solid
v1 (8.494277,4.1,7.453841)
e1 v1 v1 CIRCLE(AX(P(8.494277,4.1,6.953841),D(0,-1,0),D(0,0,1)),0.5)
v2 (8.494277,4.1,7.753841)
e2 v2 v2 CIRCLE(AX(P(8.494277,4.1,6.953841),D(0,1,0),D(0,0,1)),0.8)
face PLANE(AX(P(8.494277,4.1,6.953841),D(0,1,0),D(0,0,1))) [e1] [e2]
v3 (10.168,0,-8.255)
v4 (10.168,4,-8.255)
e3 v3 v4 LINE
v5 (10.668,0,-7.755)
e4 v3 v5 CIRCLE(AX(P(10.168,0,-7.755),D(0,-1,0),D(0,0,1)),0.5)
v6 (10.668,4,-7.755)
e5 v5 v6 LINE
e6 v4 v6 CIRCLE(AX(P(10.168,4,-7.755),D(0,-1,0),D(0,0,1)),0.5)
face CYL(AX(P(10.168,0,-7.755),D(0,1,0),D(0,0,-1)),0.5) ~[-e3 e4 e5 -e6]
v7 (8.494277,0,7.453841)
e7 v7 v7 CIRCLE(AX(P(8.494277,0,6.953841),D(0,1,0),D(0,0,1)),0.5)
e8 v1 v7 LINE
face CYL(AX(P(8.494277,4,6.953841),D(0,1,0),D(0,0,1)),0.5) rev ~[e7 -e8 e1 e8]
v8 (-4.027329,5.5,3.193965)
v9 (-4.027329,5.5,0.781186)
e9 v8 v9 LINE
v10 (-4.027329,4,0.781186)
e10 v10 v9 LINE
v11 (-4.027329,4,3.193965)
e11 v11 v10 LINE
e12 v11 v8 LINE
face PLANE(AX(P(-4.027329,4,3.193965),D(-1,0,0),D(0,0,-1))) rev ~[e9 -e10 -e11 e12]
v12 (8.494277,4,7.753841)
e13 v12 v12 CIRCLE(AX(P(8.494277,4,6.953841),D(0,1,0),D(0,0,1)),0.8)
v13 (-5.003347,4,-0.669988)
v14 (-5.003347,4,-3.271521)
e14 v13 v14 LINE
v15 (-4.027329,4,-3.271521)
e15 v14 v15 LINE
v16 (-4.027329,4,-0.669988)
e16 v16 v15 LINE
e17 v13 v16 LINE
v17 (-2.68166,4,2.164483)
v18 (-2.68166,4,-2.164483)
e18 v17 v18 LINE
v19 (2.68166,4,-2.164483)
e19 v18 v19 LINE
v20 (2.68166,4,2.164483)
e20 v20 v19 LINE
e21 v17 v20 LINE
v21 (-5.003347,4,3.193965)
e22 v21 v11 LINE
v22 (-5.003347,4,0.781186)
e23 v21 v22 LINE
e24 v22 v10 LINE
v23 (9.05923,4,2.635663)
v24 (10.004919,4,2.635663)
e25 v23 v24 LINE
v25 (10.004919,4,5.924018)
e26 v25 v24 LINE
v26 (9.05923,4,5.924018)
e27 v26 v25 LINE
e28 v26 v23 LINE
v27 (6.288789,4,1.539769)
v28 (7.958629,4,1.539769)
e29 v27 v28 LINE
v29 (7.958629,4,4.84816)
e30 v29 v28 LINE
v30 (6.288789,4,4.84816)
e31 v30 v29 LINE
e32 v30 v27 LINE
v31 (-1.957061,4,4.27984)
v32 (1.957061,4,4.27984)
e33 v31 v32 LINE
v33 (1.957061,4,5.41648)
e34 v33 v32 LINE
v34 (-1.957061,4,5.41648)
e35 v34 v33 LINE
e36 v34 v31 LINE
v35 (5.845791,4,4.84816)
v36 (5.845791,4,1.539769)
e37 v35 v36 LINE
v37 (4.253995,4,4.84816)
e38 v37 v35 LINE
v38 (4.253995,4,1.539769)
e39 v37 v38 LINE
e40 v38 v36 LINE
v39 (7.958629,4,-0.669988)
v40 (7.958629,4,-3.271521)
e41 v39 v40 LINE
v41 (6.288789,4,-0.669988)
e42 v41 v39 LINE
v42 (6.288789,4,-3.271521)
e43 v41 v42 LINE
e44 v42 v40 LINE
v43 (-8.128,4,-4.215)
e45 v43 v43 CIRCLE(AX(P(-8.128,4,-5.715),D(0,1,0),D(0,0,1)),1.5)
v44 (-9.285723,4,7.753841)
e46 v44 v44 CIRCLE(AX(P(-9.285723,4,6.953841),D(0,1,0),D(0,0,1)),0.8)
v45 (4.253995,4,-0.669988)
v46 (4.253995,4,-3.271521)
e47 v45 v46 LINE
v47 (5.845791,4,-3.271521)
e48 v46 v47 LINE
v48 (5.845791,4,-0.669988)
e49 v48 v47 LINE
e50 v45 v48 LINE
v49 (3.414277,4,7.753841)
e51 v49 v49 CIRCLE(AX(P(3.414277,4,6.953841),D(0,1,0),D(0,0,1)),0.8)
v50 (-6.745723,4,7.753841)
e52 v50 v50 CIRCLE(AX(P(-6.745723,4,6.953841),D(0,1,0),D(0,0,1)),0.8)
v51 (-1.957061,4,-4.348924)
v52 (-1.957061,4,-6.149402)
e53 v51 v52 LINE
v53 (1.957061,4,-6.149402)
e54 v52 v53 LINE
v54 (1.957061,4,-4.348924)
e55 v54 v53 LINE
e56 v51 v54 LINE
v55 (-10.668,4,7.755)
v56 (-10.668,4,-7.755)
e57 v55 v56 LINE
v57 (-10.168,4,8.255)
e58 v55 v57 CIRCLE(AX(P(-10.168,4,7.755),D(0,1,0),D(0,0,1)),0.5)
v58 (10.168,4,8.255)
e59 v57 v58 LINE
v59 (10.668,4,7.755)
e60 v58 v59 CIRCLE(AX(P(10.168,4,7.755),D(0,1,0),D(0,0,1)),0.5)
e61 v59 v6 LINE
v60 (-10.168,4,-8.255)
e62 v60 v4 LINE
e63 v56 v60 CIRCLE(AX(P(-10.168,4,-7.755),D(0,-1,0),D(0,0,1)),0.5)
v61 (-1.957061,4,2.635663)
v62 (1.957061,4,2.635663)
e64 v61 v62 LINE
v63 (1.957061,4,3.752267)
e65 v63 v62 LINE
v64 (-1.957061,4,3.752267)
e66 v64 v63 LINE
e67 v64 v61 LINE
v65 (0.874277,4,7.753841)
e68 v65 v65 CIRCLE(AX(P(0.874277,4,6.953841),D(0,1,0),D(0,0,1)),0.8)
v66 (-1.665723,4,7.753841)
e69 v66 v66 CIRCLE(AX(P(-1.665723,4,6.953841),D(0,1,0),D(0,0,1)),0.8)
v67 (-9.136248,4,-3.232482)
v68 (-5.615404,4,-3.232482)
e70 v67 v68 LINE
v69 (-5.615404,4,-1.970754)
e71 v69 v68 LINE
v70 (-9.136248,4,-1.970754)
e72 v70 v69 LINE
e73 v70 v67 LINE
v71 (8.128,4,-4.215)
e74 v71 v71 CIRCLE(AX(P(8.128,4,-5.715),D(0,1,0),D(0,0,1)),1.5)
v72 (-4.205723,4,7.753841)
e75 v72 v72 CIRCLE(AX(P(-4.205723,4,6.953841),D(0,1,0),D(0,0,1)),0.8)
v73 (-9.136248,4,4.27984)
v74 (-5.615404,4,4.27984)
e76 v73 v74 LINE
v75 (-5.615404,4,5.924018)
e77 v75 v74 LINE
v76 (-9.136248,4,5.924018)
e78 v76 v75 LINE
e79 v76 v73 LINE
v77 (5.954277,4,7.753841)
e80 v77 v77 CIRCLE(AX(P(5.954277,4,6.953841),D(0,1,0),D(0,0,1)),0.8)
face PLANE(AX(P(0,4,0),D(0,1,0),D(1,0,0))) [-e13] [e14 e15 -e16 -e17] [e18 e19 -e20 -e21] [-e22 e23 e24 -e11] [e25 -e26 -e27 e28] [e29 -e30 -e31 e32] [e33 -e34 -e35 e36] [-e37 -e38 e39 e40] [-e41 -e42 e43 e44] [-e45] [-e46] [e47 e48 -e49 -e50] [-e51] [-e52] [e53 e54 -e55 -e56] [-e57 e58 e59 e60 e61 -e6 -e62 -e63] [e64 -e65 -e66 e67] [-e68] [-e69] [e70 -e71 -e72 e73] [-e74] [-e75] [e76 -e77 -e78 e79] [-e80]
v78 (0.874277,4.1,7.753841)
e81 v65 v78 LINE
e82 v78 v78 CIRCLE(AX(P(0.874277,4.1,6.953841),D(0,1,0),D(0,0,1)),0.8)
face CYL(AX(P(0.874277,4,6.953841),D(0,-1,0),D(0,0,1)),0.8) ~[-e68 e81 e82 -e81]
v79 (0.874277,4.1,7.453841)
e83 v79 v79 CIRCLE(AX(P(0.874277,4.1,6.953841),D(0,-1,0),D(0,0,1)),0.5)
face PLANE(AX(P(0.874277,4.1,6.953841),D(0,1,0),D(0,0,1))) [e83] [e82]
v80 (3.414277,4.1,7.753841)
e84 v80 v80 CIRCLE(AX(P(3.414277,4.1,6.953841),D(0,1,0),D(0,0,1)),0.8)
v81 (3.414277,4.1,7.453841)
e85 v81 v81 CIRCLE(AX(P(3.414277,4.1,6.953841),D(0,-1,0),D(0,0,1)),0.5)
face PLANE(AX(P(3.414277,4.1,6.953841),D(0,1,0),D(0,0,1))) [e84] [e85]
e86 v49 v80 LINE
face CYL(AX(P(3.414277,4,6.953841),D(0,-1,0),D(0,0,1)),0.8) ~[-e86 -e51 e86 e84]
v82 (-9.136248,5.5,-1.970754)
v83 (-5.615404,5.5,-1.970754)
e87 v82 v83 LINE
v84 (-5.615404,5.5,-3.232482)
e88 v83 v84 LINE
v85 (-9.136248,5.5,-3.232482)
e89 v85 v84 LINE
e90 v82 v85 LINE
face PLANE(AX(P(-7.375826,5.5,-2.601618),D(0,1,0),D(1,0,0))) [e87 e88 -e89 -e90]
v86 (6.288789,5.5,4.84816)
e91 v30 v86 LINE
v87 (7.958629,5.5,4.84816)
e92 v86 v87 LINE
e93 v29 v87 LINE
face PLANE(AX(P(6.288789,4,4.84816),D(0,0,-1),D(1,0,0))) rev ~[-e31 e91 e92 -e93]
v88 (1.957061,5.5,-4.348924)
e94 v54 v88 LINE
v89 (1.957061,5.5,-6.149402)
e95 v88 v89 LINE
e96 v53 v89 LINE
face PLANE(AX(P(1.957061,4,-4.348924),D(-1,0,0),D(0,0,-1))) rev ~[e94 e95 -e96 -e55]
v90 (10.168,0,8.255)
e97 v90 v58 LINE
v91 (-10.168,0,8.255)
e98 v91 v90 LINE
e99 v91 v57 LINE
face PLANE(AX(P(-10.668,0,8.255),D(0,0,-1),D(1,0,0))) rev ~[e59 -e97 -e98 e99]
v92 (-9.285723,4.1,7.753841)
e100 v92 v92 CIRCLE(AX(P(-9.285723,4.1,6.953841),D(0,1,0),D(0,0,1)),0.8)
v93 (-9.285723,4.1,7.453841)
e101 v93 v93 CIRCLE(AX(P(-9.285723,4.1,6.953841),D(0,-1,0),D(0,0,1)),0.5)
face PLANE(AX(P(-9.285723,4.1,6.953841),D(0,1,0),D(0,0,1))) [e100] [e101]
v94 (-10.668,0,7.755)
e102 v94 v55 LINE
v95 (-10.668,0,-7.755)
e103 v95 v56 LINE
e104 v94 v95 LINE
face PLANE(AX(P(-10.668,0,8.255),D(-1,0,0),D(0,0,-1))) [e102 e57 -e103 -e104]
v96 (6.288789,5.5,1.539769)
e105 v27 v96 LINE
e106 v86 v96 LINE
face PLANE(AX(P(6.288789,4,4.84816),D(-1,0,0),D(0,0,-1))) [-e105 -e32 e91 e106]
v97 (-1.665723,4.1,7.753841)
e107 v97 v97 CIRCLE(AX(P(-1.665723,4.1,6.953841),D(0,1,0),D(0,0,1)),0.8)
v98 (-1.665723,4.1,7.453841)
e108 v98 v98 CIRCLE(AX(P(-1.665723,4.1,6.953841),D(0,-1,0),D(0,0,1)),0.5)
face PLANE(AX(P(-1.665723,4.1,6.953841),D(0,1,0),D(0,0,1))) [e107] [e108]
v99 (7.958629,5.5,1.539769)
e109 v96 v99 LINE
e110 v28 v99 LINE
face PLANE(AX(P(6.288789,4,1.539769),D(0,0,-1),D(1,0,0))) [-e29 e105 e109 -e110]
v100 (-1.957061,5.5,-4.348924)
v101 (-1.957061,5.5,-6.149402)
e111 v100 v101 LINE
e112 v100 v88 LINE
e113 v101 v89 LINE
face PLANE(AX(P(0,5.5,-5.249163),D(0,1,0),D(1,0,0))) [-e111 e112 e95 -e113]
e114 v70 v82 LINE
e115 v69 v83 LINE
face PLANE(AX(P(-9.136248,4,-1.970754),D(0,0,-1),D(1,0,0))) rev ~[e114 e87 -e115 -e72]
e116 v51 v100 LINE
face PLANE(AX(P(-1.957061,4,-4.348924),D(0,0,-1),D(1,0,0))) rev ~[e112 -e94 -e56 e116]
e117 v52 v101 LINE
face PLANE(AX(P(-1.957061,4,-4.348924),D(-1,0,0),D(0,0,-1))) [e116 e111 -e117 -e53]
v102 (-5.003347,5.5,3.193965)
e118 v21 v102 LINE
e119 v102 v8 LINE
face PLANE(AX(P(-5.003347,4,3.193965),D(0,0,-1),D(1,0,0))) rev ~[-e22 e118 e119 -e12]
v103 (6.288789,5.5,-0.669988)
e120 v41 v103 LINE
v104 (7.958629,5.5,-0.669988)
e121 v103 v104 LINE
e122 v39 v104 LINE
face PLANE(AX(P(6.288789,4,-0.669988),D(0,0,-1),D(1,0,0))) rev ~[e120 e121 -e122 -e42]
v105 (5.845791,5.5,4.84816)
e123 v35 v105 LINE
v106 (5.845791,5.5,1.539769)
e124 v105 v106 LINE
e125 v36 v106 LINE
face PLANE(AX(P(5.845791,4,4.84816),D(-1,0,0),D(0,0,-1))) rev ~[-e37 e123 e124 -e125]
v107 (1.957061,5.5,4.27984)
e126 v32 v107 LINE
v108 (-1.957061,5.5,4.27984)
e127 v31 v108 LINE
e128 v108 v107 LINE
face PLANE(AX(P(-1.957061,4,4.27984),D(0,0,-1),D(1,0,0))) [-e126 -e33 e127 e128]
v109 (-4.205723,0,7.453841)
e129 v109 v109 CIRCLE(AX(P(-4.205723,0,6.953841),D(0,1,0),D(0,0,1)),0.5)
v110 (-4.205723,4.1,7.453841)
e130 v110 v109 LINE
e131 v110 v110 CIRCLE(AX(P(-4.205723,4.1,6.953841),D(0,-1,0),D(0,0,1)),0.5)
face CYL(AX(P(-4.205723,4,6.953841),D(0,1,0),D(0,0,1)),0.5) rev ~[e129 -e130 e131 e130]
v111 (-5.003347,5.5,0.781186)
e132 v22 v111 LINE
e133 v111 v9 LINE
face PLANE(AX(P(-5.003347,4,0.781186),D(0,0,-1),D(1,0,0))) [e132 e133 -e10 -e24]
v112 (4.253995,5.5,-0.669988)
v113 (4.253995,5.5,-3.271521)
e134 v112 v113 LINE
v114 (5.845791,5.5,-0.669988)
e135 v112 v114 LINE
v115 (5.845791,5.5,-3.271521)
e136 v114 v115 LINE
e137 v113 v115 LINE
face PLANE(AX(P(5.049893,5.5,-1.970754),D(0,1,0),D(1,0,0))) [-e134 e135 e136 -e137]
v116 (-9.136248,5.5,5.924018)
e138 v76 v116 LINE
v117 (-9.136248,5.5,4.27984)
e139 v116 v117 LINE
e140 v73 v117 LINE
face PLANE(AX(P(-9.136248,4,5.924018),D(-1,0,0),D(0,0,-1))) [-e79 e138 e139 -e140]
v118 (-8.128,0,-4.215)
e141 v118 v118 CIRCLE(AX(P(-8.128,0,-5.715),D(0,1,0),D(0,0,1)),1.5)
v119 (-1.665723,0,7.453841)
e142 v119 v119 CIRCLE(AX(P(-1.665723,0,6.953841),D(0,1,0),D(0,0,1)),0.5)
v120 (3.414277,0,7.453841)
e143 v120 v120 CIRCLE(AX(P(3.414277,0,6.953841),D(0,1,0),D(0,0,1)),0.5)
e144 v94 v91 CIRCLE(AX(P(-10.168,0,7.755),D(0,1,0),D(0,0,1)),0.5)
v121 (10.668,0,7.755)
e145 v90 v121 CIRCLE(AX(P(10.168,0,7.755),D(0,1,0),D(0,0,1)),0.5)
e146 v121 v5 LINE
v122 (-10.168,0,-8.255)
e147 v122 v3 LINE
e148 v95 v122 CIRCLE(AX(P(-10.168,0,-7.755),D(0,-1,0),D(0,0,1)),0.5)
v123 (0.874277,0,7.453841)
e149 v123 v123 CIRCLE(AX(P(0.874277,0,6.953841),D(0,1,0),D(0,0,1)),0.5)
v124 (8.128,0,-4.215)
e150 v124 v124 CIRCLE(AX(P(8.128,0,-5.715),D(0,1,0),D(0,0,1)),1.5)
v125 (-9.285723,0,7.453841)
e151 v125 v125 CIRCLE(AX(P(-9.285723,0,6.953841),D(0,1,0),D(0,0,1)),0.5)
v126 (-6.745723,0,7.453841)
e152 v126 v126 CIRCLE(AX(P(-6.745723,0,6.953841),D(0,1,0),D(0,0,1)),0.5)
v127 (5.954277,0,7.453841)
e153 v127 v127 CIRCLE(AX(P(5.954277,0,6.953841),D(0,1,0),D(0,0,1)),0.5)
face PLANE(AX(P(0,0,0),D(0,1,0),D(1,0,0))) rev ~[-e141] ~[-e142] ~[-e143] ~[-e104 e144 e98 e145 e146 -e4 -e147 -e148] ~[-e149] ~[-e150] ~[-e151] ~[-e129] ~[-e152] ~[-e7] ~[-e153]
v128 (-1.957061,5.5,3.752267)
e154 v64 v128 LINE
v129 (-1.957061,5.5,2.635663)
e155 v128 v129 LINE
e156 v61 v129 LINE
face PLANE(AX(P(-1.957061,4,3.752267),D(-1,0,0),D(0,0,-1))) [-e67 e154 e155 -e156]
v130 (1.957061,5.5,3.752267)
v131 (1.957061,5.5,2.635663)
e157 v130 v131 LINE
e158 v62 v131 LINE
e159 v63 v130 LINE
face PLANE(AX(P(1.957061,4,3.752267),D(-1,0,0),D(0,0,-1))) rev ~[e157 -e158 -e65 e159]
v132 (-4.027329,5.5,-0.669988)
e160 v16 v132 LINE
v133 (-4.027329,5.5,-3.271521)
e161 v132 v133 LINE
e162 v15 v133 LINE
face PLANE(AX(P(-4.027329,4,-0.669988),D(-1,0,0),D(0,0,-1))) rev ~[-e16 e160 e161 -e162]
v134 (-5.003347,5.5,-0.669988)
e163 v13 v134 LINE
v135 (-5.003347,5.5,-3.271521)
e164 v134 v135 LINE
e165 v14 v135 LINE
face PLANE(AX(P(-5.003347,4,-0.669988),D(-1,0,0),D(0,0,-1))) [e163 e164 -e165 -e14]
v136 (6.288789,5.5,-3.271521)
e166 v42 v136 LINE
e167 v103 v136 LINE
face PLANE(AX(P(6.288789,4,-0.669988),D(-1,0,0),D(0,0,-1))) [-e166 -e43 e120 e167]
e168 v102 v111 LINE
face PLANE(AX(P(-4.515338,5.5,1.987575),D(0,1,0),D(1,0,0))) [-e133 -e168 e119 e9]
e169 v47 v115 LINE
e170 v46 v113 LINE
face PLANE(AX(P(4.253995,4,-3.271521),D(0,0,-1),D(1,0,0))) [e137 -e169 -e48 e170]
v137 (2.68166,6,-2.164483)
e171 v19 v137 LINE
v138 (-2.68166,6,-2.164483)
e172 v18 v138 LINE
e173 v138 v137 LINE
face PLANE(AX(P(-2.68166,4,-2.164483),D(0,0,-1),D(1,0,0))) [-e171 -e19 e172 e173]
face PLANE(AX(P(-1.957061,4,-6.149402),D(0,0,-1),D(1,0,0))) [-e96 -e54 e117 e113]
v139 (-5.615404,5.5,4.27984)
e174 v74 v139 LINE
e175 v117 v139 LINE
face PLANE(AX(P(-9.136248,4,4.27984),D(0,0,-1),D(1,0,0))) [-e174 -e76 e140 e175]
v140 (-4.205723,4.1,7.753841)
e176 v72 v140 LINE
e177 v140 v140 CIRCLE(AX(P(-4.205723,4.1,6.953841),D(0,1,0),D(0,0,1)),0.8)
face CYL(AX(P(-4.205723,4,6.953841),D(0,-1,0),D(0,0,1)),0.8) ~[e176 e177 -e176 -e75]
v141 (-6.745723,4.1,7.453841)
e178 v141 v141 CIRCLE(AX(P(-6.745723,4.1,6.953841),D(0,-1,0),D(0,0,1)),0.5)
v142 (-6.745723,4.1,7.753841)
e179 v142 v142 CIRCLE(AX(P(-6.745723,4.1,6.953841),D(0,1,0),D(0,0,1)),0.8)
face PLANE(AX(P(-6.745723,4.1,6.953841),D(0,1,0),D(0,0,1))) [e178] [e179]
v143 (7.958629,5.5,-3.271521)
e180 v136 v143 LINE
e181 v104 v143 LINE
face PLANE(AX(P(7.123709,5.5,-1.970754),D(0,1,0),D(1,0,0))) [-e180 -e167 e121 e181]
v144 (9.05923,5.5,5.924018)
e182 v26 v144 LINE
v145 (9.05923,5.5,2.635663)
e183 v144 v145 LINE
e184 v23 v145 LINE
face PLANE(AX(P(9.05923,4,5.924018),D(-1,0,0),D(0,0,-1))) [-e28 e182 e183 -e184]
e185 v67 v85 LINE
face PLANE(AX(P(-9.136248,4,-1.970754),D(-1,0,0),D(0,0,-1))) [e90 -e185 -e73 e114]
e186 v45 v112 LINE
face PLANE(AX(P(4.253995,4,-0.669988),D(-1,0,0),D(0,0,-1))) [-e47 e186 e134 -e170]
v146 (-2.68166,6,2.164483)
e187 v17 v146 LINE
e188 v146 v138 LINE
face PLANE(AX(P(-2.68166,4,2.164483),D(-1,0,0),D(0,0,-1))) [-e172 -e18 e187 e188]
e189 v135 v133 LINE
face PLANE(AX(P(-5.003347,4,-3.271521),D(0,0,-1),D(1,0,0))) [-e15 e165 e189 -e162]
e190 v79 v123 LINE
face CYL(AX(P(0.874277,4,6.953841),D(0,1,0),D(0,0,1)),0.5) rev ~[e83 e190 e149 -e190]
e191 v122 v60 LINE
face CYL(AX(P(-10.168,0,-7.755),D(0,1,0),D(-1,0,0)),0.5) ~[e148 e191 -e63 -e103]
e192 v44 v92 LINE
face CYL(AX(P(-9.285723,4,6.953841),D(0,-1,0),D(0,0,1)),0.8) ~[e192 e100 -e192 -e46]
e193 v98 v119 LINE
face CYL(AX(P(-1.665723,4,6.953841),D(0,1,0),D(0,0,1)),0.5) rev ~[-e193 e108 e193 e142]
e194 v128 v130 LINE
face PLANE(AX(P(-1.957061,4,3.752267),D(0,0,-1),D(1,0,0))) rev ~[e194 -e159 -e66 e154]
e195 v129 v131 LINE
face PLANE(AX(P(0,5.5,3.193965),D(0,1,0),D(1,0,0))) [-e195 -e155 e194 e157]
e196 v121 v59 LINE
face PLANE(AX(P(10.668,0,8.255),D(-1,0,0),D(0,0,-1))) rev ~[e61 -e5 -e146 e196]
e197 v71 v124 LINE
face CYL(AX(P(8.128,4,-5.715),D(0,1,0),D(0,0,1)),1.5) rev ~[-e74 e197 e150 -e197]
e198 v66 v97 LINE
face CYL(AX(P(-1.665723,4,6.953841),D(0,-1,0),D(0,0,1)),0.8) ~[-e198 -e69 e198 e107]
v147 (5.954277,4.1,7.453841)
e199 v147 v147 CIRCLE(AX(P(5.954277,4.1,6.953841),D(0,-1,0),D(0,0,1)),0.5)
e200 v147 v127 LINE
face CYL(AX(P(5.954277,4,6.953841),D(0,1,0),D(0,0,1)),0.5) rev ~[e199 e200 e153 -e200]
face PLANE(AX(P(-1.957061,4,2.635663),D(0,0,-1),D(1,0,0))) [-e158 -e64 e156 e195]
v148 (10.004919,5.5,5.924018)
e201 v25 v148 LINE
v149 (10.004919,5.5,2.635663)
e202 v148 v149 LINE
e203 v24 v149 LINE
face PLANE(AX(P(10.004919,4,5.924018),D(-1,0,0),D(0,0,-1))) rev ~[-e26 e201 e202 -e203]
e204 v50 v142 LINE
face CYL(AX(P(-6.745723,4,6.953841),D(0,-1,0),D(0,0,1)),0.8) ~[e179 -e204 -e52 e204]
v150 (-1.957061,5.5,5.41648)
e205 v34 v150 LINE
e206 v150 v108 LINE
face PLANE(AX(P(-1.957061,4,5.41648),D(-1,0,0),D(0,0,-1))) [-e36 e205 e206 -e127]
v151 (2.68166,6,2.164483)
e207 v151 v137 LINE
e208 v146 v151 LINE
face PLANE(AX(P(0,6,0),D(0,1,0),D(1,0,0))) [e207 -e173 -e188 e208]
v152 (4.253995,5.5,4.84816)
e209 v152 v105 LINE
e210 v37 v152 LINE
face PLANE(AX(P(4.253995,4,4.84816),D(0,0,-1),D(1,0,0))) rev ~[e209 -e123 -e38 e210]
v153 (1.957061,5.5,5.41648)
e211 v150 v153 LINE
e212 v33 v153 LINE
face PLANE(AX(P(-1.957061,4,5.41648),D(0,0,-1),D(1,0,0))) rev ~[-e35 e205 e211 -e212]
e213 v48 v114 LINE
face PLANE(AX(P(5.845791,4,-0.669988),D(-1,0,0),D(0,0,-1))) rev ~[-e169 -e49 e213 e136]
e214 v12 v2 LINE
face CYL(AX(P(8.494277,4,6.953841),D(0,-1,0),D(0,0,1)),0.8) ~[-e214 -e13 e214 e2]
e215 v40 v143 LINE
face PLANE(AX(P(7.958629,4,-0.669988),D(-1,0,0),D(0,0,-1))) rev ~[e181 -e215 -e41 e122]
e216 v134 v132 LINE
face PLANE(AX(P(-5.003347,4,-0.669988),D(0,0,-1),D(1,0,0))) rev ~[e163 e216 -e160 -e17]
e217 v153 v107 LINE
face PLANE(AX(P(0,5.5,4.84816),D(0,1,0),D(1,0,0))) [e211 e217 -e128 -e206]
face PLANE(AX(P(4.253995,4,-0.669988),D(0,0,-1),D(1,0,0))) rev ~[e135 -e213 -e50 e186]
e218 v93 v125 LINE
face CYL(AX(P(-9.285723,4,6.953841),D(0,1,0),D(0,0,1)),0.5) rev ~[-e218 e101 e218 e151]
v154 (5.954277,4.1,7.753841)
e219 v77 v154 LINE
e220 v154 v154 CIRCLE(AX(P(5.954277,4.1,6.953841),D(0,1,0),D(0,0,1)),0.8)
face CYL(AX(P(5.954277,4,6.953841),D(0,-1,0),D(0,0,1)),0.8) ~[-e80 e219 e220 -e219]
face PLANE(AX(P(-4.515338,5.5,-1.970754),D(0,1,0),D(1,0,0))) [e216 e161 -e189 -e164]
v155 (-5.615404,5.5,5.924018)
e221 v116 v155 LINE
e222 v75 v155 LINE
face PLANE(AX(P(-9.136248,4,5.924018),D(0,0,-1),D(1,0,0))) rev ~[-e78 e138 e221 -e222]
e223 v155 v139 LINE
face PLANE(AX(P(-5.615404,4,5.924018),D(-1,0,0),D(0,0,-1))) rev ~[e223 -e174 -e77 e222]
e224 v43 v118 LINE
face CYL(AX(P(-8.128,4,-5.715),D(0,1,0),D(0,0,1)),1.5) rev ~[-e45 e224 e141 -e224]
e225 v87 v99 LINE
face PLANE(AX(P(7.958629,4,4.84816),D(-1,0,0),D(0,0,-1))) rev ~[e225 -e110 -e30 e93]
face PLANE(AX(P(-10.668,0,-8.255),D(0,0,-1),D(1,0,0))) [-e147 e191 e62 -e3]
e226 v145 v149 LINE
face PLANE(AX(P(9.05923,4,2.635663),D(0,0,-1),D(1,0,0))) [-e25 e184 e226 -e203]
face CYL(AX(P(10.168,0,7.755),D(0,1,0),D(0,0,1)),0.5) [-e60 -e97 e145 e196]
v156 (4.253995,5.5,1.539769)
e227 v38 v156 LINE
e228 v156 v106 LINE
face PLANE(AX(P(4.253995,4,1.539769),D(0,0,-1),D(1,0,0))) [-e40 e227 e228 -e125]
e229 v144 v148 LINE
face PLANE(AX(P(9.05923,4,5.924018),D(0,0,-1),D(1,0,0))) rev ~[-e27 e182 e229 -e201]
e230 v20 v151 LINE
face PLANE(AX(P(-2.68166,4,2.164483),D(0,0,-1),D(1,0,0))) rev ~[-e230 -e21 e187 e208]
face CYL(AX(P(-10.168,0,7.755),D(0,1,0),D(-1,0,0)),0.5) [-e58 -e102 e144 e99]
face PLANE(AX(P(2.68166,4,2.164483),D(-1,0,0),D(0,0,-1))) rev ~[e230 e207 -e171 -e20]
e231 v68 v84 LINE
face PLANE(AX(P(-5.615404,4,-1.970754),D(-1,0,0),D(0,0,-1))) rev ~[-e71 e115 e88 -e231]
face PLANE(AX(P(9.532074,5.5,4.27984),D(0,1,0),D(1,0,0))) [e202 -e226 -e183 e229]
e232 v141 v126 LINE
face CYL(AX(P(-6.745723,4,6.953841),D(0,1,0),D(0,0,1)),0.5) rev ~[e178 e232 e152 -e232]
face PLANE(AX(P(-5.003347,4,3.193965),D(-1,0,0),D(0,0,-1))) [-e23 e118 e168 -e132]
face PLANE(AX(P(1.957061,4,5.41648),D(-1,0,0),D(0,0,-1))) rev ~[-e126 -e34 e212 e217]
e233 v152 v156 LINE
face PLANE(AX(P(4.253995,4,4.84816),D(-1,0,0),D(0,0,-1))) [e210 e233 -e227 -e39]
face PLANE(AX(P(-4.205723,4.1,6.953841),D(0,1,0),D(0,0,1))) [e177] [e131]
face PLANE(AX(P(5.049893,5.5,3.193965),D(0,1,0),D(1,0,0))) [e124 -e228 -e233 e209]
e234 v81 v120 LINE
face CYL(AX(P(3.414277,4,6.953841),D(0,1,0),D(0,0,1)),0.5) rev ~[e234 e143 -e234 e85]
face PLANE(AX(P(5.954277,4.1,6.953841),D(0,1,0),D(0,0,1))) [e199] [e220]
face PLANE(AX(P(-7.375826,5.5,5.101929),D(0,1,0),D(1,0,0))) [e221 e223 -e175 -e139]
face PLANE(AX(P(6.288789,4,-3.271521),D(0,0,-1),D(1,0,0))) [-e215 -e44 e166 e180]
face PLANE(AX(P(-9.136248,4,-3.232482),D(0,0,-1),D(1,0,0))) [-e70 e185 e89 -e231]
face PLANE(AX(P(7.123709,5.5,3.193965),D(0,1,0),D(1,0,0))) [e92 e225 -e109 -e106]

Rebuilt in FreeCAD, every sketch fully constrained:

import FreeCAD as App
import Part
import Sketcher

V = App.Vector


def edges_at(feature, points):
    """Names of the edges that pass closest to the given points."""
    edges = feature.Shape.Edges
    near = lambda p: min(range(len(edges)), key=lambda i: edges[i].distToShape(Part.Vertex(*p))[0])
    return sorted({f"Edge{near(p) + 1}" for p in points})

doc = App.newDocument("Part")
body = doc.addObject("PartDesign::Body", "Body")

# Sketch on XZ plane
sketch1 = body.newObject("Sketcher::SketchObject", "Sketch")
sketch1.AttachmentSupport = (doc.getObject("XZ_Plane"), [""])
sketch1.MapMode = "FlatFace"
sketch1.addGeometry([
    Part.LineSegment(V(-11, -8, 0), V(-11, 8, 0)),
    Part.LineSegment(V(-11, 8, 0), V(11, 8, 0)),
    Part.LineSegment(V(11, 8, 0), V(11, -8, 0)),
    Part.LineSegment(V(11, -8, 0), V(-11, -8, 0)),
], False)
sketch1.addConstraint([
    Sketcher.Constraint("Coincident", 0, 2, 1, 1),
    Sketcher.Constraint("Coincident", 1, 2, 2, 1),
    Sketcher.Constraint("Coincident", 2, 2, 3, 1),
    Sketcher.Constraint("Coincident", 3, 2, 0, 1),
    Sketcher.Constraint("Vertical", 0),
    Sketcher.Constraint("Horizontal", 1),
    Sketcher.Constraint("Vertical", 2),
    Sketcher.Constraint("Horizontal", 3),
    Sketcher.Constraint("Symmetric", 0, 2, 2, 2, -1, 1),
    Sketcher.Constraint("DistanceY", 0, 1, 0, 2, 16.51),
    Sketcher.Constraint("DistanceX", 1, 1, 1, 2, 21.336),
])
pad1 = body.newObject("PartDesign::Pad", "Pad")
pad1.Profile = sketch1
pad1.Length = 4
pad1.Reversed = True

# Sketch on XZ plane
sketch2 = body.newObject("Sketcher::SketchObject", "Sketch001")
sketch2.AttachmentSupport = (doc.getObject("XZ_Plane"), [""])
sketch2.MapMode = "FlatFace"
sketch2.AttachmentOffset = App.Placement(V(0, 0, -4), App.Rotation())
sketch2.addGeometry([
    Part.Circle(V(-8.1, -5.7, 0), V(0, 0, 1), 1.5),
    Part.Circle(V(8.1, -5.7, 0), V(0, 0, 1), 1.5),
], False)
sketch2.addConstraint([
    Sketcher.Constraint("Equal", 0, 1),
    Sketcher.Constraint("Symmetric", 0, 3, 1, 3, -2),
    Sketcher.Constraint("Diameter", 0, 3.0),
    Sketcher.Constraint("DistanceX", 0, 3, -1, 1, 8.128),
    Sketcher.Constraint("DistanceY", 0, 3, -1, 1, 5.715),
])
pocket1 = body.newObject("PartDesign::Pocket", "Pocket")
pocket1.Profile = sketch2
pocket1.Length = 4
pocket1.Reversed = True
doc.recompute()

fillet = body.newObject("PartDesign::Fillet", "Fillet")
fillet.Base = (pocket1, edges_at(pocket1, [(-10.668, 2, -8.255)]))
fillet.Radius = 0.5
doc.recompute()

fillet2 = body.newObject("PartDesign::Fillet", "Fillet001")
fillet2.Base = (fillet, edges_at(fillet, [(10.668, 2, -8.255)]))
fillet2.Radius = 0.5
doc.recompute()

fillet3 = body.newObject("PartDesign::Fillet", "Fillet002")
fillet3.Base = (fillet2, edges_at(fillet2, [(-10.668, 2, 8.255)]))
fillet3.Radius = 0.5
doc.recompute()

fillet4 = body.newObject("PartDesign::Fillet", "Fillet003")
fillet4.Base = (fillet3, edges_at(fillet3, [(10.668, 2, 8.255)]))
fillet4.Radius = 0.5

# Sketch on XZ plane
sketch3 = body.newObject("Sketcher::SketchObject", "Sketch002")
sketch3.AttachmentSupport = (doc.getObject("XZ_Plane"), [""])
sketch3.MapMode = "FlatFace"
sketch3.AttachmentOffset = App.Placement(V(0, 0, -4), App.Rotation())
sketch3.addGeometry([
    Part.LineSegment(V(-2.7, -2.2, 0), V(-2.7, 2.2, 0)),
    Part.LineSegment(V(-2.7, 2.2, 0), V(2.7, 2.2, 0)),
    Part.LineSegment(V(2.7, 2.2, 0), V(2.7, -2.2, 0)),
    Part.LineSegment(V(2.7, -2.2, 0), V(-2.7, -2.2, 0)),
], False)
sketch3.addConstraint([
    Sketcher.Constraint("Coincident", 0, 2, 1, 1),
    Sketcher.Constraint("Coincident", 1, 2, 2, 1),
    Sketcher.Constraint("Coincident", 2, 2, 3, 1),
    Sketcher.Constraint("Coincident", 3, 2, 0, 1),
    Sketcher.Constraint("Vertical", 0),
    Sketcher.Constraint("Horizontal", 1),
    Sketcher.Constraint("Vertical", 2),
    Sketcher.Constraint("Horizontal", 3),
    Sketcher.Constraint("Symmetric", 0, 2, 2, 2, -1, 1),
    Sketcher.Constraint("DistanceX", 1, 1, 1, 2, 5.36332),
    Sketcher.Constraint("DistanceY", 0, 1, 0, 2, 4.328966),
])
pad2 = body.newObject("PartDesign::Pad", "Pad001")
pad2.Profile = sketch3
pad2.Length = 2
pad2.Reversed = True

# Sketch on XZ plane
sketch4 = body.newObject("Sketcher::SketchObject", "Sketch003")
sketch4.AttachmentSupport = (doc.getObject("XZ_Plane"), [""])
sketch4.MapMode = "FlatFace"
sketch4.AttachmentOffset = App.Placement(V(0, 0, -4), App.Rotation())
sketch4.addGeometry([
    Part.LineSegment(V(-9.1, 4.3, 0), V(-9.1, 5.9, 0)),  # 0
    Part.LineSegment(V(-9.1, 5.9, 0), V(-5.6, 5.9, 0)),  # 1
    Part.LineSegment(V(-5.6, 5.9, 0), V(-5.6, 4.3, 0)),  # 2
    Part.LineSegment(V(-5.6, 4.3, 0), V(-9.1, 4.3, 0)),  # 3
    Part.LineSegment(V(-9.1, -3.2, 0), V(-9.1, -2, 0)),  # 4
    Part.LineSegment(V(-9.1, -2, 0), V(-5.6, -2, 0)),  # 5
    Part.LineSegment(V(-5.6, -2, 0), V(-5.6, -3.2, 0)),  # 6
    Part.LineSegment(V(-5.6, -3.2, 0), V(-9.1, -3.2, 0)),  # 7
    Part.LineSegment(V(-2, -6.1, 0), V(-2, -4.3, 0)),  # 8
    Part.LineSegment(V(-2, -4.3, 0), V(2, -4.3, 0)),  # 9
    Part.LineSegment(V(2, -4.3, 0), V(2, -6.1, 0)),  # 10
    Part.LineSegment(V(2, -6.1, 0), V(-2, -6.1, 0)),  # 11
    Part.LineSegment(V(4.3, -3.3, 0), V(4.3, -0.7, 0)),  # 12
    Part.LineSegment(V(4.3, -0.7, 0), V(5.8, -0.7, 0)),  # 13
    Part.LineSegment(V(5.8, -0.7, 0), V(5.8, -3.3, 0)),  # 14
    Part.LineSegment(V(5.8, -3.3, 0), V(4.3, -3.3, 0)),  # 15
    Part.LineSegment(V(6.3, -3.3, 0), V(6.3, -0.7, 0)),  # 16
    Part.LineSegment(V(6.3, -0.7, 0), V(8, -0.7, 0)),  # 17
    Part.LineSegment(V(8, -0.7, 0), V(8, -3.3, 0)),  # 18
    Part.LineSegment(V(8, -3.3, 0), V(6.3, -3.3, 0)),  # 19
    Part.LineSegment(V(4.3, 1.5, 0), V(4.3, 4.8, 0)),  # 20
    Part.LineSegment(V(4.3, 4.8, 0), V(5.8, 4.8, 0)),  # 21
    Part.LineSegment(V(5.8, 4.8, 0), V(5.8, 1.5, 0)),  # 22
    Part.LineSegment(V(5.8, 1.5, 0), V(4.3, 1.5, 0)),  # 23
    Part.LineSegment(V(6.3, 1.5, 0), V(6.3, 4.8, 0)),  # 24
    Part.LineSegment(V(6.3, 4.8, 0), V(8, 4.8, 0)),  # 25
    Part.LineSegment(V(8, 4.8, 0), V(8, 1.5, 0)),  # 26
    Part.LineSegment(V(8, 1.5, 0), V(6.3, 1.5, 0)),  # 27
    Part.LineSegment(V(9.1, 2.6, 0), V(9.1, 5.9, 0)),  # 28
    Part.LineSegment(V(9.1, 5.9, 0), V(10, 5.9, 0)),  # 29
    Part.LineSegment(V(10, 5.9, 0), V(10, 2.6, 0)),  # 30
    Part.LineSegment(V(10, 2.6, 0), V(9.1, 2.6, 0)),  # 31
    Part.LineSegment(V(-5, -3.3, 0), V(-5, -0.7, 0)),  # 32
    Part.LineSegment(V(-5, -0.7, 0), V(-4, -0.7, 0)),  # 33
    Part.LineSegment(V(-4, -0.7, 0), V(-4, -3.3, 0)),  # 34
    Part.LineSegment(V(-4, -3.3, 0), V(-5, -3.3, 0)),  # 35
    Part.LineSegment(V(-5, 0.8, 0), V(-5, 3.2, 0)),  # 36
    Part.LineSegment(V(-5, 3.2, 0), V(-4, 3.2, 0)),  # 37
    Part.LineSegment(V(-4, 3.2, 0), V(-4, 0.8, 0)),  # 38
    Part.LineSegment(V(-4, 0.8, 0), V(-5, 0.8, 0)),  # 39
    Part.LineSegment(V(-2, 2.6, 0), V(-2, 3.8, 0)),  # 40
    Part.LineSegment(V(-2, 3.8, 0), V(2, 3.8, 0)),  # 41
    Part.LineSegment(V(2, 3.8, 0), V(2, 2.6, 0)),  # 42
    Part.LineSegment(V(2, 2.6, 0), V(-2, 2.6, 0)),  # 43
    Part.LineSegment(V(-2, 4.3, 0), V(-2, 5.4, 0)),  # 44
    Part.LineSegment(V(-2, 5.4, 0), V(2, 5.4, 0)),  # 45
    Part.LineSegment(V(2, 5.4, 0), V(2, 4.3, 0)),  # 46
    Part.LineSegment(V(2, 4.3, 0), V(-2, 4.3, 0)),  # 47
], False)
sketch4.addConstraint([
    Sketcher.Constraint("Coincident", 0, 2, 1, 1),
    Sketcher.Constraint("Coincident", 1, 2, 2, 1),
    Sketcher.Constraint("Coincident", 2, 2, 3, 1),
    Sketcher.Constraint("Coincident", 3, 2, 0, 1),
    Sketcher.Constraint("Coincident", 4, 2, 5, 1),
    Sketcher.Constraint("Coincident", 5, 2, 6, 1),
    Sketcher.Constraint("Coincident", 6, 2, 7, 1),
    Sketcher.Constraint("Coincident", 7, 2, 4, 1),
    Sketcher.Constraint("Coincident", 8, 2, 9, 1),
    Sketcher.Constraint("Coincident", 9, 2, 10, 1),
    Sketcher.Constraint("Coincident", 10, 2, 11, 1),
    Sketcher.Constraint("Coincident", 11, 2, 8, 1),
    Sketcher.Constraint("Coincident", 12, 2, 13, 1),
    Sketcher.Constraint("Coincident", 13, 2, 14, 1),
    Sketcher.Constraint("Coincident", 14, 2, 15, 1),
    Sketcher.Constraint("Coincident", 15, 2, 12, 1),
    Sketcher.Constraint("Coincident", 16, 2, 17, 1),
    Sketcher.Constraint("Coincident", 17, 2, 18, 1),
    Sketcher.Constraint("Coincident", 18, 2, 19, 1),
    Sketcher.Constraint("Coincident", 19, 2, 16, 1),
    Sketcher.Constraint("Coincident", 20, 2, 21, 1),
    Sketcher.Constraint("Coincident", 21, 2, 22, 1),
    Sketcher.Constraint("Coincident", 22, 2, 23, 1),
    Sketcher.Constraint("Coincident", 23, 2, 20, 1),
    Sketcher.Constraint("Coincident", 24, 2, 25, 1),
    Sketcher.Constraint("Coincident", 25, 2, 26, 1),
    Sketcher.Constraint("Coincident", 26, 2, 27, 1),
    Sketcher.Constraint("Coincident", 27, 2, 24, 1),
    Sketcher.Constraint("Coincident", 28, 2, 29, 1),
    Sketcher.Constraint("Coincident", 29, 2, 30, 1),
    Sketcher.Constraint("Coincident", 30, 2, 31, 1),
    Sketcher.Constraint("Coincident", 31, 2, 28, 1),
    Sketcher.Constraint("Coincident", 32, 2, 33, 1),
    Sketcher.Constraint("Coincident", 33, 2, 34, 1),
    Sketcher.Constraint("Coincident", 34, 2, 35, 1),
    Sketcher.Constraint("Coincident", 35, 2, 32, 1),
    Sketcher.Constraint("Coincident", 36, 2, 37, 1),
    Sketcher.Constraint("Coincident", 37, 2, 38, 1),
    Sketcher.Constraint("Coincident", 38, 2, 39, 1),
    Sketcher.Constraint("Coincident", 39, 2, 36, 1),
    Sketcher.Constraint("Coincident", 40, 2, 41, 1),
    Sketcher.Constraint("Coincident", 41, 2, 42, 1),
    Sketcher.Constraint("Coincident", 42, 2, 43, 1),
    Sketcher.Constraint("Coincident", 43, 2, 40, 1),
    Sketcher.Constraint("Coincident", 44, 2, 45, 1),
    Sketcher.Constraint("Coincident", 45, 2, 46, 1),
    Sketcher.Constraint("Coincident", 46, 2, 47, 1),
    Sketcher.Constraint("Coincident", 47, 2, 44, 1),
    Sketcher.Constraint("Vertical", 0),
    Sketcher.Constraint("Horizontal", 1),
    Sketcher.Constraint("Vertical", 2),
    Sketcher.Constraint("Horizontal", 3),
    Sketcher.Constraint("Vertical", 4),
    Sketcher.Constraint("Horizontal", 5),
    Sketcher.Constraint("Vertical", 6),
    Sketcher.Constraint("Horizontal", 7),
    Sketcher.Constraint("Vertical", 8),
    Sketcher.Constraint("Horizontal", 9),
    Sketcher.Constraint("Vertical", 10),
    Sketcher.Constraint("Horizontal", 11),
    Sketcher.Constraint("Vertical", 12),
    Sketcher.Constraint("Horizontal", 13),
    Sketcher.Constraint("Vertical", 14),
    Sketcher.Constraint("Horizontal", 15),
    Sketcher.Constraint("Vertical", 16),
    Sketcher.Constraint("Horizontal", 17),
    Sketcher.Constraint("Vertical", 18),
    Sketcher.Constraint("Horizontal", 19),
    Sketcher.Constraint("Vertical", 20),
    Sketcher.Constraint("Horizontal", 21),
    Sketcher.Constraint("Vertical", 22),
    Sketcher.Constraint("Horizontal", 23),
    Sketcher.Constraint("Vertical", 24),
    Sketcher.Constraint("Horizontal", 25),
    Sketcher.Constraint("Vertical", 26),
    Sketcher.Constraint("Horizontal", 27),
    Sketcher.Constraint("Vertical", 28),
    Sketcher.Constraint("Horizontal", 29),
    Sketcher.Constraint("Vertical", 30),
    Sketcher.Constraint("Horizontal", 31),
    Sketcher.Constraint("Vertical", 32),
    Sketcher.Constraint("Horizontal", 33),
    Sketcher.Constraint("Vertical", 34),
    Sketcher.Constraint("Horizontal", 35),
    Sketcher.Constraint("Vertical", 36),
    Sketcher.Constraint("Horizontal", 37),
    Sketcher.Constraint("Vertical", 38),
    Sketcher.Constraint("Horizontal", 39),
    Sketcher.Constraint("Vertical", 40),
    Sketcher.Constraint("Horizontal", 41),
    Sketcher.Constraint("Vertical", 42),
    Sketcher.Constraint("Horizontal", 43),
    Sketcher.Constraint("Vertical", 44),
    Sketcher.Constraint("Horizontal", 45),
    Sketcher.Constraint("Vertical", 46),
    Sketcher.Constraint("Horizontal", 47),
    Sketcher.Constraint("Horizontal", 13, 2, 16, 2),
    Sketcher.Constraint("Horizontal", 15, 2, 18, 2),
    Sketcher.Constraint("Horizontal", 21, 2, 24, 2),
    Sketcher.Constraint("Horizontal", 23, 2, 26, 2),
    Sketcher.Constraint("Horizontal", 1, 2, 28, 2),
    Sketcher.Constraint("Horizontal", 17, 2, 32, 2),
    Sketcher.Constraint("Horizontal", 19, 2, 34, 2),
    Sketcher.Constraint("Horizontal", 31, 2, 42, 2),
    Sketcher.Constraint("Horizontal", 3, 2, 46, 2),
    Sketcher.Constraint("Vertical", 3, 2, 4, 2),
    Sketcher.Constraint("Vertical", 2, 2, 5, 2),
    Sketcher.Constraint("Vertical", 15, 2, 20, 2),
    Sketcher.Constraint("Vertical", 14, 2, 21, 2),
    Sketcher.Constraint("Vertical", 19, 2, 24, 2),
    Sketcher.Constraint("Vertical", 18, 2, 25, 2),
    Sketcher.Constraint("Vertical", 35, 2, 36, 2),
    Sketcher.Constraint("Vertical", 34, 2, 37, 2),
    Sketcher.Constraint("Vertical", 11, 2, 40, 2),
    Sketcher.Constraint("Vertical", 10, 2, 41, 2),
    Sketcher.Constraint("Vertical", 43, 2, 44, 2),
    Sketcher.Constraint("Vertical", 42, 2, 45, 2),
    Sketcher.Constraint("DistanceX", 13, 2, 16, 2, 0.442998),
    Sketcher.Constraint("DistanceX", 9, 1, 9, 2, 3.914121),
    Sketcher.Constraint("DistanceX", 17, 1, 17, 2, 1.669839),
    Sketcher.Constraint("DistanceX", 29, 1, 29, 2, 0.945688),
    Sketcher.Constraint("DistanceX", 33, 1, 33, 2, 0.976019),
    Sketcher.Constraint("DistanceY", 8, 1, 8, 2, 1.800478),
    Sketcher.Constraint("DistanceY", 20, 1, 20, 2, 3.308391),
    Sketcher.Constraint("DistanceY", 36, 1, 36, 2, 2.412779),
    Sketcher.Constraint("DistanceY", 44, 1, 44, 2, 1.13664),
    Sketcher.Constraint("DistanceY", 6, 2, 1, 2, 9.1565),
    Sketcher.Constraint("DistanceX", 5, 2, 12, 2, 9.869399),
    Sketcher.Constraint("DistanceX", 25, 2, 28, 2, 1.100602),
    Sketcher.Constraint("DistanceX", 4, 2, 32, 2, 4.132901),
    Sketcher.Constraint("DistanceY", 37, 2, 40, 2, 0.558302),
    Sketcher.Constraint("DistanceY", 43, 2, 37, 2, 0.558302),
    Sketcher.Constraint("DistanceX", 1, 1, 1, 2, 3.520844),
    Sketcher.Constraint("DistanceX", 13, 1, 13, 2, 1.591797),
    Sketcher.Constraint("DistanceY", 0, 1, 0, 2, 1.644177),
    Sketcher.Constraint("DistanceY", 4, 1, 4, 2, 1.261727),
    Sketcher.Constraint("DistanceY", 12, 1, 12, 2, 2.601533),
    Sketcher.Constraint("DistanceY", 28, 1, 28, 2, 3.288355),
    Sketcher.Constraint("DistanceY", -1, 1, 2, 2, 4.27984),
    Sketcher.Constraint("DistanceX", 8, 2, -1, 1, 1.957061),
    Sketcher.Constraint("DistanceX", -1, 1, 13, 2, 5.845791),
    Sketcher.Constraint("DistanceY", 14, 2, -1, 1, 3.271521),
    Sketcher.Constraint("DistanceY", -1, 1, 20, 2, 4.84816),
    Sketcher.Constraint("DistanceY", 8, 2, 5, 2, 2.37817),
])
pad3 = body.newObject("PartDesign::Pad", "Pad002")
pad3.Profile = sketch4
pad3.Length = 1.5
pad3.Reversed = True

# Sketch on XZ plane
sketch5 = body.newObject("Sketcher::SketchObject", "Sketch004")
sketch5.AttachmentSupport = (doc.getObject("XZ_Plane"), [""])
sketch5.MapMode = "FlatFace"
sketch5.AttachmentOffset = App.Placement(V(0, 0, -4), App.Rotation())
sketch5.addGeometry([
    Part.Circle(V(-9.3, 7, 0), V(0, 0, 1), 0.8),  # 0
    Part.Circle(V(-6.7, 7, 0), V(0, 0, 1), 0.8),  # 1
    Part.Circle(V(-4.2, 7, 0), V(0, 0, 1), 0.8),  # 2
    Part.Circle(V(-1.7, 7, 0), V(0, 0, 1), 0.8),  # 3
    Part.Circle(V(0.9, 7, 0), V(0, 0, 1), 0.8),  # 4
    Part.Circle(V(3.4, 7, 0), V(0, 0, 1), 0.8),  # 5
    Part.Circle(V(6, 7, 0), V(0, 0, 1), 0.8),  # 6
    Part.Circle(V(8.5, 7, 0), V(0, 0, 1), 0.8),  # 7
], False)
sketch5.addConstraint([
    Sketcher.Constraint("Equal", 0, 1),
    Sketcher.Constraint("Equal", 1, 2),
    Sketcher.Constraint("Equal", 2, 3),
    Sketcher.Constraint("Equal", 3, 4),
    Sketcher.Constraint("Equal", 4, 5),
    Sketcher.Constraint("Equal", 5, 6),
    Sketcher.Constraint("Equal", 6, 7),
    Sketcher.Constraint("Horizontal", 0, 3, 1, 3),
    Sketcher.Constraint("Horizontal", 1, 3, 2, 3),
    Sketcher.Constraint("Horizontal", 2, 3, 3, 3),
    Sketcher.Constraint("Horizontal", 3, 3, 4, 3),
    Sketcher.Constraint("Horizontal", 4, 3, 5, 3),
    Sketcher.Constraint("Horizontal", 5, 3, 6, 3),
    Sketcher.Constraint("Horizontal", 6, 3, 7, 3),
    Sketcher.Constraint("Diameter", 0, 1.6),
    Sketcher.Constraint("DistanceX", 0, 3, 5, 3, 12.7),
    Sketcher.Constraint("DistanceX", 1, 3, 6, 3, 12.7),
    Sketcher.Constraint("DistanceX", 2, 3, 7, 3, 12.7),
    Sketcher.Constraint("DistanceX", 0, 3, 1, 3, 2.54),
    Sketcher.Constraint("DistanceX", 1, 3, 2, 3, 2.54),
    Sketcher.Constraint("DistanceX", 2, 3, 3, 3, 2.54),
    Sketcher.Constraint("DistanceX", 3, 3, 4, 3, 2.54),
    Sketcher.Constraint("DistanceY", -1, 1, 0, 3, 6.953841),
    Sketcher.Constraint("DistanceX", 0, 3, -1, 1, 9.285723),
])
pad4 = body.newObject("PartDesign::Pad", "Pad003")
pad4.Profile = sketch5
pad4.Length = 0.1
pad4.Reversed = True

# Sketch on XZ plane
sketch6 = body.newObject("Sketcher::SketchObject", "Sketch005")
sketch6.AttachmentSupport = (doc.getObject("XZ_Plane"), [""])
sketch6.MapMode = "FlatFace"
sketch6.AttachmentOffset = App.Placement(V(0, 0, -4), App.Rotation())
sketch6.addGeometry(Part.Circle(V(-9.3, 7, 0), V(0, 0, 1), 0.5), False)
sketch6.addConstraint([
    Sketcher.Constraint("Diameter", 0, 1.0),
    Sketcher.Constraint("DistanceY", -1, 1, 0, 3, 6.953841),
    Sketcher.Constraint("DistanceX", 0, 3, -1, 1, 9.285723),
])
pocket2 = body.newObject("PartDesign::Pocket", "Pocket001")
pocket2.Profile = sketch6
pocket2.Type = "UpToFirst"
pocket2.Reversed = True

# Sketch on XZ plane
sketch7 = body.newObject("Sketcher::SketchObject", "Sketch006")
sketch7.AttachmentSupport = (doc.getObject("XZ_Plane"), [""])
sketch7.MapMode = "FlatFace"
sketch7.AttachmentOffset = App.Placement(V(0, 0, -4), App.Rotation())
sketch7.addGeometry(Part.Circle(V(-6.7, 7, 0), V(0, 0, 1), 0.5), False)
sketch7.addConstraint([
    Sketcher.Constraint("Diameter", 0, 1.0),
    Sketcher.Constraint("DistanceY", -1, 1, 0, 3, 6.953841),
    Sketcher.Constraint("DistanceX", 0, 3, -1, 1, 6.745723),
])
pocket3 = body.newObject("PartDesign::Pocket", "Pocket002")
pocket3.Profile = sketch7
pocket3.Type = "UpToFirst"
pocket3.Reversed = True

# Sketch on XZ plane
sketch8 = body.newObject("Sketcher::SketchObject", "Sketch007")
sketch8.AttachmentSupport = (doc.getObject("XZ_Plane"), [""])
sketch8.MapMode = "FlatFace"
sketch8.AttachmentOffset = App.Placement(V(0, 0, -4), App.Rotation())
sketch8.addGeometry(Part.Circle(V(-4.2, 7, 0), V(0, 0, 1), 0.5), False)
sketch8.addConstraint([
    Sketcher.Constraint("Diameter", 0, 1.0),
    Sketcher.Constraint("DistanceY", -1, 1, 0, 3, 6.953841),
    Sketcher.Constraint("DistanceX", 0, 3, -1, 1, 4.205723),
])
pocket4 = body.newObject("PartDesign::Pocket", "Pocket003")
pocket4.Profile = sketch8
pocket4.Type = "UpToFirst"
pocket4.Reversed = True

# Sketch on XZ plane
sketch9 = body.newObject("Sketcher::SketchObject", "Sketch008")
sketch9.AttachmentSupport = (doc.getObject("XZ_Plane"), [""])
sketch9.MapMode = "FlatFace"
sketch9.AttachmentOffset = App.Placement(V(0, 0, -4), App.Rotation())
sketch9.addGeometry(Part.Circle(V(-1.7, 7, 0), V(0, 0, 1), 0.5), False)
sketch9.addConstraint([
    Sketcher.Constraint("Diameter", 0, 1.0),
    Sketcher.Constraint("DistanceY", -1, 1, 0, 3, 6.953841),
    Sketcher.Constraint("DistanceX", 0, 3, -1, 1, 1.665723),
])
pocket5 = body.newObject("PartDesign::Pocket", "Pocket004")
pocket5.Profile = sketch9
pocket5.Type = "UpToFirst"
pocket5.Reversed = True

# Sketch on XZ plane
sketch10 = body.newObject("Sketcher::SketchObject", "Sketch009")
sketch10.AttachmentSupport = (doc.getObject("XZ_Plane"), [""])
sketch10.MapMode = "FlatFace"
sketch10.AttachmentOffset = App.Placement(V(0, 0, -4), App.Rotation())
sketch10.addGeometry(Part.Circle(V(0.9, 7, 0), V(0, 0, 1), 0.5), False)
sketch10.addConstraint([
    Sketcher.Constraint("Diameter", 0, 1.0),
    Sketcher.Constraint("DistanceY", -1, 1, 0, 3, 6.953841),
    Sketcher.Constraint("DistanceX", -1, 1, 0, 3, 0.874277),
])
pocket6 = body.newObject("PartDesign::Pocket", "Pocket005")
pocket6.Profile = sketch10
pocket6.Type = "UpToFirst"
pocket6.Reversed = True

# Sketch on XZ plane
sketch11 = body.newObject("Sketcher::SketchObject", "Sketch010")
sketch11.AttachmentSupport = (doc.getObject("XZ_Plane"), [""])
sketch11.MapMode = "FlatFace"
sketch11.AttachmentOffset = App.Placement(V(0, 0, -4), App.Rotation())
sketch11.addGeometry(Part.Circle(V(3.4, 7, 0), V(0, 0, 1), 0.5), False)
sketch11.addConstraint([
    Sketcher.Constraint("Diameter", 0, 1.0),
    Sketcher.Constraint("DistanceY", -1, 1, 0, 3, 6.953841),
    Sketcher.Constraint("DistanceX", -1, 1, 0, 3, 3.414277),
])
pocket7 = body.newObject("PartDesign::Pocket", "Pocket006")
pocket7.Profile = sketch11
pocket7.Type = "UpToFirst"
pocket7.Reversed = True

# Sketch on XZ plane
sketch12 = body.newObject("Sketcher::SketchObject", "Sketch011")
sketch12.AttachmentSupport = (doc.getObject("XZ_Plane"), [""])
sketch12.MapMode = "FlatFace"
sketch12.AttachmentOffset = App.Placement(V(0, 0, -4), App.Rotation())
sketch12.addGeometry(Part.Circle(V(6, 7, 0), V(0, 0, 1), 0.5), False)
sketch12.addConstraint([
    Sketcher.Constraint("Diameter", 0, 1.0),
    Sketcher.Constraint("DistanceY", -1, 1, 0, 3, 6.953841),
    Sketcher.Constraint("DistanceX", -1, 1, 0, 3, 5.954277),
])
pocket8 = body.newObject("PartDesign::Pocket", "Pocket007")
pocket8.Profile = sketch12
pocket8.Type = "UpToFirst"
pocket8.Reversed = True

# Sketch on XZ plane
sketch13 = body.newObject("Sketcher::SketchObject", "Sketch012")
sketch13.AttachmentSupport = (doc.getObject("XZ_Plane"), [""])
sketch13.MapMode = "FlatFace"
sketch13.AttachmentOffset = App.Placement(V(0, 0, -4), App.Rotation())
sketch13.addGeometry(Part.Circle(V(8.5, 7, 0), V(0, 0, 1), 0.5), False)
sketch13.addConstraint([
    Sketcher.Constraint("Diameter", 0, 1.0),
    Sketcher.Constraint("DistanceY", -1, 1, 0, 3, 6.953841),
    Sketcher.Constraint("DistanceX", -1, 1, 0, 3, 8.494277),
])
pocket9 = body.newObject("PartDesign::Pocket", "Pocket008")
pocket9.Profile = sketch13
pocket9.Type = "UpToFirst"
pocket9.Reversed = True

# Sketch on XZ plane
sketch14 = body.newObject("Sketcher::SketchObject", "Sketch013")
sketch14.AttachmentSupport = (doc.getObject("XZ_Plane"), [""])
sketch14.MapMode = "FlatFace"
sketch14.AttachmentOffset = App.Placement(V(0, 0, -4), App.Rotation())
sketch14.addGeometry(Part.Circle(V(-9.3, 7, 0), V(0, 0, 1), 0.5), False)
sketch14.addConstraint([
    Sketcher.Constraint("Diameter", 0, 1.0),
    Sketcher.Constraint("DistanceY", -1, 1, 0, 3, 6.953841),
    Sketcher.Constraint("DistanceX", 0, 3, -1, 1, 9.285723),
])
pocket10 = body.newObject("PartDesign::Pocket", "Pocket009")
pocket10.Profile = sketch14
pocket10.Type = "UpToFirst"

# Sketch on XZ plane
sketch15 = body.newObject("Sketcher::SketchObject", "Sketch014")
sketch15.AttachmentSupport = (doc.getObject("XZ_Plane"), [""])
sketch15.MapMode = "FlatFace"
sketch15.AttachmentOffset = App.Placement(V(0, 0, -4), App.Rotation())
sketch15.addGeometry(Part.Circle(V(-6.7, 7, 0), V(0, 0, 1), 0.5), False)
sketch15.addConstraint([
    Sketcher.Constraint("Diameter", 0, 1.0),
    Sketcher.Constraint("DistanceY", -1, 1, 0, 3, 6.953841),
    Sketcher.Constraint("DistanceX", 0, 3, -1, 1, 6.745723),
])
pocket11 = body.newObject("PartDesign::Pocket", "Pocket010")
pocket11.Profile = sketch15
pocket11.Type = "UpToFirst"

# Sketch on XZ plane
sketch16 = body.newObject("Sketcher::SketchObject", "Sketch015")
sketch16.AttachmentSupport = (doc.getObject("XZ_Plane"), [""])
sketch16.MapMode = "FlatFace"
sketch16.AttachmentOffset = App.Placement(V(0, 0, -4), App.Rotation())
sketch16.addGeometry(Part.Circle(V(-4.2, 7, 0), V(0, 0, 1), 0.5), False)
sketch16.addConstraint([
    Sketcher.Constraint("Diameter", 0, 1.0),
    Sketcher.Constraint("DistanceY", -1, 1, 0, 3, 6.953841),
    Sketcher.Constraint("DistanceX", 0, 3, -1, 1, 4.205723),
])
pocket12 = body.newObject("PartDesign::Pocket", "Pocket011")
pocket12.Profile = sketch16
pocket12.Type = "UpToFirst"

# Sketch on XZ plane
sketch17 = body.newObject("Sketcher::SketchObject", "Sketch016")
sketch17.AttachmentSupport = (doc.getObject("XZ_Plane"), [""])
sketch17.MapMode = "FlatFace"
sketch17.AttachmentOffset = App.Placement(V(0, 0, -4), App.Rotation())
sketch17.addGeometry(Part.Circle(V(-1.7, 7, 0), V(0, 0, 1), 0.5), False)
sketch17.addConstraint([
    Sketcher.Constraint("Diameter", 0, 1.0),
    Sketcher.Constraint("DistanceY", -1, 1, 0, 3, 6.953841),
    Sketcher.Constraint("DistanceX", 0, 3, -1, 1, 1.665723),
])
pocket13 = body.newObject("PartDesign::Pocket", "Pocket012")
pocket13.Profile = sketch17
pocket13.Type = "UpToFirst"

# Sketch on XZ plane
sketch18 = body.newObject("Sketcher::SketchObject", "Sketch017")
sketch18.AttachmentSupport = (doc.getObject("XZ_Plane"), [""])
sketch18.MapMode = "FlatFace"
sketch18.AttachmentOffset = App.Placement(V(0, 0, -4), App.Rotation())
sketch18.addGeometry(Part.Circle(V(0.9, 7, 0), V(0, 0, 1), 0.5), False)
sketch18.addConstraint([
    Sketcher.Constraint("Diameter", 0, 1.0),
    Sketcher.Constraint("DistanceY", -1, 1, 0, 3, 6.953841),
    Sketcher.Constraint("DistanceX", -1, 1, 0, 3, 0.874277),
])
pocket14 = body.newObject("PartDesign::Pocket", "Pocket013")
pocket14.Profile = sketch18
pocket14.Type = "UpToFirst"

# Sketch on XZ plane
sketch19 = body.newObject("Sketcher::SketchObject", "Sketch018")
sketch19.AttachmentSupport = (doc.getObject("XZ_Plane"), [""])
sketch19.MapMode = "FlatFace"
sketch19.AttachmentOffset = App.Placement(V(0, 0, -4), App.Rotation())
sketch19.addGeometry(Part.Circle(V(3.4, 7, 0), V(0, 0, 1), 0.5), False)
sketch19.addConstraint([
    Sketcher.Constraint("Diameter", 0, 1.0),
    Sketcher.Constraint("DistanceY", -1, 1, 0, 3, 6.953841),
    Sketcher.Constraint("DistanceX", -1, 1, 0, 3, 3.414277),
])
pocket15 = body.newObject("PartDesign::Pocket", "Pocket014")
pocket15.Profile = sketch19
pocket15.Type = "UpToFirst"

# Sketch on XZ plane
sketch20 = body.newObject("Sketcher::SketchObject", "Sketch019")
sketch20.AttachmentSupport = (doc.getObject("XZ_Plane"), [""])
sketch20.MapMode = "FlatFace"
sketch20.AttachmentOffset = App.Placement(V(0, 0, -4), App.Rotation())
sketch20.addGeometry(Part.Circle(V(6, 7, 0), V(0, 0, 1), 0.5), False)
sketch20.addConstraint([
    Sketcher.Constraint("Diameter", 0, 1.0),
    Sketcher.Constraint("DistanceY", -1, 1, 0, 3, 6.953841),
    Sketcher.Constraint("DistanceX", -1, 1, 0, 3, 5.954277),
])
pocket16 = body.newObject("PartDesign::Pocket", "Pocket015")
pocket16.Profile = sketch20
pocket16.Type = "UpToFirst"

# Sketch on XZ plane
sketch21 = body.newObject("Sketcher::SketchObject", "Sketch020")
sketch21.AttachmentSupport = (doc.getObject("XZ_Plane"), [""])
sketch21.MapMode = "FlatFace"
sketch21.AttachmentOffset = App.Placement(V(0, 0, -4), App.Rotation())
sketch21.addGeometry(Part.Circle(V(8.5, 7, 0), V(0, 0, 1), 0.5), False)
sketch21.addConstraint([
    Sketcher.Constraint("Diameter", 0, 1.0),
    Sketcher.Constraint("DistanceY", -1, 1, 0, 3, 6.953841),
    Sketcher.Constraint("DistanceX", -1, 1, 0, 3, 8.494277),
])
pocket17 = body.newObject("PartDesign::Pocket", "Pocket016")
pocket17.Profile = sketch21
pocket17.Type = "UpToFirst"

doc.recompute()
